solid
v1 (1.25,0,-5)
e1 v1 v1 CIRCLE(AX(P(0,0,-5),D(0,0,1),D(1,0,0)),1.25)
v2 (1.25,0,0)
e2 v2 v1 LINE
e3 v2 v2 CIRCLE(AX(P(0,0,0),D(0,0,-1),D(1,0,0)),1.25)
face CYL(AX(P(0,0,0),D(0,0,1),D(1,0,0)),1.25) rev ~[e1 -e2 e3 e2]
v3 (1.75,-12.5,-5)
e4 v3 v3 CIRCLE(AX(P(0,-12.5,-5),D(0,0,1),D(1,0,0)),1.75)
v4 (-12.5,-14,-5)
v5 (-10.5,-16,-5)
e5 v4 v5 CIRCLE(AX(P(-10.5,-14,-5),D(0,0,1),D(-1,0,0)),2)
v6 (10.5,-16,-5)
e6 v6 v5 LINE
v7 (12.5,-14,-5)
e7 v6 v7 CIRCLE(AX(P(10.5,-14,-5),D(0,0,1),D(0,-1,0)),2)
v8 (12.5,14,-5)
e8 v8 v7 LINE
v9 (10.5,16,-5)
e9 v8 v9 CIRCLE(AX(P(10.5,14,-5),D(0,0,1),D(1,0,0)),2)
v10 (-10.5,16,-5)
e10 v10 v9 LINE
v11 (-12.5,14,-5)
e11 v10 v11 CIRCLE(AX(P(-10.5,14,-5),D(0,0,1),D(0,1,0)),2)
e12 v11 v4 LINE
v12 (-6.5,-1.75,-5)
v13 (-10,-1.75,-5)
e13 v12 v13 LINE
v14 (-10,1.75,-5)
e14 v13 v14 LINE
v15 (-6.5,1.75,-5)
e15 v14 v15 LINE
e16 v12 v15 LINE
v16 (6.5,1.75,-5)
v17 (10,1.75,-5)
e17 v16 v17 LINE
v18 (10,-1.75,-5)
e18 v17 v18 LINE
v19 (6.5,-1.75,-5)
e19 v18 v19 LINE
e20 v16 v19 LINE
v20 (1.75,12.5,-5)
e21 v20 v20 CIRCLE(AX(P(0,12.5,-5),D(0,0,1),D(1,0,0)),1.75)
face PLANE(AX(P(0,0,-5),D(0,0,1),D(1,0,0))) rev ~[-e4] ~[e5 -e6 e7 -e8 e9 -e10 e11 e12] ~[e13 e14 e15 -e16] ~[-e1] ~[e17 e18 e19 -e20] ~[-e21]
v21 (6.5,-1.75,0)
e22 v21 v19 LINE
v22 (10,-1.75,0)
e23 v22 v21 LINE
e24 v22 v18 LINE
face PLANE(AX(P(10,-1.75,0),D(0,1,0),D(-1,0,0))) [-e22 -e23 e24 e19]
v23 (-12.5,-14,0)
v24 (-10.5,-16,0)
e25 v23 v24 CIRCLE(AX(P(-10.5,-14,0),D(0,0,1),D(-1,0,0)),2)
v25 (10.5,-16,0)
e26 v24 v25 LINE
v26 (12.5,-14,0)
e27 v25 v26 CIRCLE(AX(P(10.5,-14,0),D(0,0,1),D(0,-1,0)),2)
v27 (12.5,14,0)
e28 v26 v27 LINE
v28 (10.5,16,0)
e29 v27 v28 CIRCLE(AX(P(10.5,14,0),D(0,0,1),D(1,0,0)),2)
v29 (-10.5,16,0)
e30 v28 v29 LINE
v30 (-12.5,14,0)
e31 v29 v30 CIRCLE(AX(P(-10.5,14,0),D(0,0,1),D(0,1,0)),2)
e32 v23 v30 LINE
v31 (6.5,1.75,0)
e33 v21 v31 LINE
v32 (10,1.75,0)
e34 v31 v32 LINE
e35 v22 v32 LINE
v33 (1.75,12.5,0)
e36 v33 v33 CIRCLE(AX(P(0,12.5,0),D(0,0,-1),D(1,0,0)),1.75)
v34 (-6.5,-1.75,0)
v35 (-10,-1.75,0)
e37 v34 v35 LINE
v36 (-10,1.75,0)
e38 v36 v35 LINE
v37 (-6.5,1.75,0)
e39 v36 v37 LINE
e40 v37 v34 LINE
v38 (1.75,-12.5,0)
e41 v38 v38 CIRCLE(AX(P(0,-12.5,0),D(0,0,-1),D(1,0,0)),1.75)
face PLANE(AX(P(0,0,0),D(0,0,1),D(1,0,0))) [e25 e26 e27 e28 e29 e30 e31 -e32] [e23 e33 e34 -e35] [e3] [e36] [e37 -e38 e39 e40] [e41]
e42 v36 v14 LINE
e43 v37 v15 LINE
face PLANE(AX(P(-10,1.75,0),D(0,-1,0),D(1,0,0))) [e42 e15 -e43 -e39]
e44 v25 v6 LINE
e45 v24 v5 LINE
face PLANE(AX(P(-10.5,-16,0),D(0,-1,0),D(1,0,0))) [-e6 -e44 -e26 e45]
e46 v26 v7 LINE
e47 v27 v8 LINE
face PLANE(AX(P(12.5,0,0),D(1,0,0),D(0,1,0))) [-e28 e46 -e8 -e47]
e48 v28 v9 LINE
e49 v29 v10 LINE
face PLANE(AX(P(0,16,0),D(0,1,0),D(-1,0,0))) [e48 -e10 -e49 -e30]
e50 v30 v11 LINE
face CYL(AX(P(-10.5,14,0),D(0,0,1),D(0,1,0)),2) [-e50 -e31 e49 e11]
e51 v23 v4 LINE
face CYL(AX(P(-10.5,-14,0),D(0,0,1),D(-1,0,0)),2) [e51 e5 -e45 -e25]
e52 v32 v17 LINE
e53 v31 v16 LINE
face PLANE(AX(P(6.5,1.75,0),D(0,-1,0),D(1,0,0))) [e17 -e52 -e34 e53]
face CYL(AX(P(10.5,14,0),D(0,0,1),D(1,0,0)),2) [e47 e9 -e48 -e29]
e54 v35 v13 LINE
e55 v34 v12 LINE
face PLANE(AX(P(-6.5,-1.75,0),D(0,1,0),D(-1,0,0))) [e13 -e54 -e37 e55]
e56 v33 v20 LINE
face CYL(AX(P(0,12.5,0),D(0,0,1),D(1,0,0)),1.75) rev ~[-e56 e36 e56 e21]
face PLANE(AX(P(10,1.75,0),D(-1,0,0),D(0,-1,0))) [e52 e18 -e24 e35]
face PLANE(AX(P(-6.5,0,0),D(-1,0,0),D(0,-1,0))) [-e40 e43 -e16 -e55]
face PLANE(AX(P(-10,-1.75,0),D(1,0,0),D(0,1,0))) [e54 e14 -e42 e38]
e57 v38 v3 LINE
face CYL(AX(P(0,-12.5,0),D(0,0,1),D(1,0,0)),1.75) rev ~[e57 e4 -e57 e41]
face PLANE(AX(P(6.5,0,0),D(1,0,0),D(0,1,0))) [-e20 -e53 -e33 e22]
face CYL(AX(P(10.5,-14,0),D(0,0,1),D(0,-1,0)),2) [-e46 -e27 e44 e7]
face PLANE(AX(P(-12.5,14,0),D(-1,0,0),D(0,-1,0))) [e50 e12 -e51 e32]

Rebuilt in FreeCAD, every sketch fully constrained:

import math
import FreeCAD as App
import Part
import Sketcher

V = App.Vector

doc = App.newDocument("Part")
body = doc.addObject("PartDesign::Body", "Body")

# Sketch on XY plane
sketch1 = body.newObject("Sketcher::SketchObject", "Sketch")
sketch1.AttachmentSupport = (doc.getObject("XY_Plane"), [""])
sketch1.MapMode = "FlatFace"
sketch1.addGeometry(Part.LineSegment(V(-12.5, 14, 0), V(-12.5, -14, 0)), False)
sketch1.addGeometry(Part.ArcOfCircle(Part.Circle(V(-10.5, -14, 0), V(0, 0, 1), 2), math.radians(180), math.radians(270)), False)
sketch1.addGeometry(Part.LineSegment(V(-10.5, -16, 0), V(10.5, -16, 0)), False)
sketch1.addGeometry(Part.ArcOfCircle(Part.Circle(V(10.5, -14, 0), V(0, 0, 1), 2), math.radians(-90), math.radians(0)), False)
sketch1.addGeometry(Part.LineSegment(V(12.5, -14, 0), V(12.5, 14, 0)), False)
sketch1.addGeometry(Part.ArcOfCircle(Part.Circle(V(10.5, 14, 0), V(0, 0, 1), 2), math.radians(0), math.radians(90)), False)
sketch1.addGeometry(Part.LineSegment(V(10.5, 16, 0), V(-10.5, 16, 0)), False)
sketch1.addGeometry(Part.ArcOfCircle(Part.Circle(V(-10.5, 14, 0), V(0, 0, 1), 2), math.radians(90), math.radians(180)), False)
sketch1.addConstraint(Sketcher.Constraint("Tangent", 0, 2, 1, 1))
sketch1.addConstraint(Sketcher.Constraint("Tangent", 1, 2, 2, 1))
sketch1.addConstraint(Sketcher.Constraint("Tangent", 2, 2, 3, 1))
sketch1.addConstraint(Sketcher.Constraint("Tangent", 3, 2, 4, 1))
sketch1.addConstraint(Sketcher.Constraint("Tangent", 4, 2, 5, 1))
sketch1.addConstraint(Sketcher.Constraint("Tangent", 5, 2, 6, 1))
sketch1.addConstraint(Sketcher.Constraint("Tangent", 6, 2, 7, 1))
sketch1.addConstraint(Sketcher.Constraint("Tangent", 7, 2, 0, 1))
sketch1.addConstraint(Sketcher.Constraint("Vertical", 0))
sketch1.addConstraint(Sketcher.Constraint("Horizontal", 2))
sketch1.addConstraint(Sketcher.Constraint("Vertical", 4))
sketch1.addConstraint(Sketcher.Constraint("Horizontal", 6))
sketch1.addConstraint(Sketcher.Constraint("Equal", 1, 3))
sketch1.addConstraint(Sketcher.Constraint("Equal", 3, 5))
sketch1.addConstraint(Sketcher.Constraint("Equal", 5, 7))
sketch1.addConstraint(Sketcher.Constraint("Symmetric", 1, 3, 5, 3, -1, 1))
sketch1.addConstraint(Sketcher.Constraint("Radius", 1, 2.0))
sketch1.addConstraint(Sketcher.Constraint("DistanceX", 0, 2, 3, 2, 25.0))
sketch1.addConstraint(Sketcher.Constraint("DistanceY", 0, 2, 0, 1, 28.0))
pad1 = body.newObject("PartDesign::Pad", "Pad")
pad1.Profile = sketch1
pad1.Length = 5
pad1.Reversed = True

# Sketch on XY plane
sketch2 = body.newObject("Sketcher::SketchObject", "Sketch001")
sketch2.AttachmentSupport = (doc.getObject("XY_Plane"), [""])
sketch2.MapMode = "FlatFace"
sketch2.addGeometry(Part.Circle(V(0, -12.5, 0), V(0, 0, 1), 1.75), False)
sketch2.addGeometry(Part.Circle(V(0, 12.5, 0), V(0, 0, 1), 1.75), False)
sketch2.addConstraint(Sketcher.Constraint("Equal", 0, 1))
sketch2.addConstraint(Sketcher.Constraint("Symmetric", 0, 3, 1, 3, -1, 1))
sketch2.addConstraint(Sketcher.Constraint("PointOnObject", 0, 3, -2))
sketch2.addConstraint(Sketcher.Constraint("Diameter", 0, 3.5))
sketch2.addConstraint(Sketcher.Constraint("DistanceY", 0, 3, 1, 3, 25.0))
pocket1 = body.newObject("PartDesign::Pocket", "Pocket")
pocket1.Profile = sketch2
pocket1.Length = 5

# Sketch on XY plane
sketch3 = body.newObject("Sketcher::SketchObject", "Sketch002")
sketch3.AttachmentSupport = (doc.getObject("XY_Plane"), [""])
sketch3.MapMode = "FlatFace"
sketch3.addGeometry(Part.LineSegment(V(-6.5, -1.75, 0), V(-6.5, 1.75, 0)), False)
sketch3.addGeometry(Part.LineSegment(V(-6.5, 1.75, 0), V(-10, 1.75, 0)), False)
sketch3.addGeometry(Part.LineSegment(V(-10, 1.75, 0), V(-10, -1.75, 0)), False)
sketch3.addGeometry(Part.LineSegment(V(-10, -1.75, 0), V(-6.5, -1.75, 0)), False)
sketch3.addGeometry(Part.LineSegment(V(6.5, 1.75, 0), V(6.5, -1.75, 0)), False)
sketch3.addGeometry(Part.LineSegment(V(6.5, -1.75, 0), V(10, -1.75, 0)), False)
sketch3.addGeometry(Part.LineSegment(V(10, -1.75, 0), V(10, 1.75, 0)), False)
sketch3.addGeometry(Part.LineSegment(V(10, 1.75, 0), V(6.5, 1.75, 0)), False)
sketch3.addConstraint(Sketcher.Constraint("Coincident", 0, 2, 1, 1))
sketch3.addConstraint(Sketcher.Constraint("Coincident", 1, 2, 2, 1))
sketch3.addConstraint(Sketcher.Constraint("Coincident", 2, 2, 3, 1))
sketch3.addConstraint(Sketcher.Constraint("Coincident", 3, 2, 0, 1))
sketch3.addConstraint(Sketcher.Constraint("Coincident", 4, 2, 5, 1))
sketch3.addConstraint(Sketcher.Constraint("Coincident", 5, 2, 6, 1))
sketch3.addConstraint(Sketcher.Constraint("Coincident", 6, 2, 7, 1))
sketch3.addConstraint(Sketcher.Constraint("Coincident", 7, 2, 4, 1))
sketch3.addConstraint(Sketcher.Constraint("Vertical", 0))
sketch3.addConstraint(Sketcher.Constraint("Horizontal", 1))
sketch3.addConstraint(Sketcher.Constraint("Vertical", 2))
sketch3.addConstraint(Sketcher.Constraint("Horizontal", 3))
sketch3.addConstraint(Sketcher.Constraint("Vertical", 4))
sketch3.addConstraint(Sketcher.Constraint("Horizontal", 5))
sketch3.addConstraint(Sketcher.Constraint("Vertical", 6))
sketch3.addConstraint(Sketcher.Constraint("Horizontal", 7))
sketch3.addConstraint(Sketcher.Constraint("Symmetric", 0, 2, 4, 2, -1, 1))
sketch3.addConstraint(Sketcher.Constraint("Symmetric", 2, 2, 6, 2, -1, 1))
sketch3.addConstraint(Sketcher.Constraint("Horizontal", 3, 2, 4, 2))
sketch3.addConstraint(Sketcher.Constraint("Equal", 7, 0))
sketch3.addConstraint(Sketcher.Constraint("DistanceX", 1, 2, 1, 1, 3.5))
sketch3.addConstraint(Sketcher.Constraint("DistanceX", 3, 2, 4, 2, 13.0))
pocket2 = body.newObject("PartDesign::Pocket", "Pocket001")
pocket2.Profile = sketch3
pocket2.Length = 5

# Sketch on XY plane
sketch4 = body.newObject("Sketcher::SketchObject", "Sketch003")
sketch4.AttachmentSupport = (doc.getObject("XY_Plane"), [""])
sketch4.MapMode = "FlatFace"
sketch4.addGeometry(Part.Circle(V(0, 0, 0), V(0, 0, 1), 1.25), False)
sketch4.addConstraint(Sketcher.Constraint("Coincident", 0, 3, -1, 1))
sketch4.addConstraint(Sketcher.Constraint("Diameter", 0, 2.5))
pocket3 = body.newObject("PartDesign::Pocket", "Pocket002")
pocket3.Profile = sketch4
pocket3.Length = 5

doc.recompute()
